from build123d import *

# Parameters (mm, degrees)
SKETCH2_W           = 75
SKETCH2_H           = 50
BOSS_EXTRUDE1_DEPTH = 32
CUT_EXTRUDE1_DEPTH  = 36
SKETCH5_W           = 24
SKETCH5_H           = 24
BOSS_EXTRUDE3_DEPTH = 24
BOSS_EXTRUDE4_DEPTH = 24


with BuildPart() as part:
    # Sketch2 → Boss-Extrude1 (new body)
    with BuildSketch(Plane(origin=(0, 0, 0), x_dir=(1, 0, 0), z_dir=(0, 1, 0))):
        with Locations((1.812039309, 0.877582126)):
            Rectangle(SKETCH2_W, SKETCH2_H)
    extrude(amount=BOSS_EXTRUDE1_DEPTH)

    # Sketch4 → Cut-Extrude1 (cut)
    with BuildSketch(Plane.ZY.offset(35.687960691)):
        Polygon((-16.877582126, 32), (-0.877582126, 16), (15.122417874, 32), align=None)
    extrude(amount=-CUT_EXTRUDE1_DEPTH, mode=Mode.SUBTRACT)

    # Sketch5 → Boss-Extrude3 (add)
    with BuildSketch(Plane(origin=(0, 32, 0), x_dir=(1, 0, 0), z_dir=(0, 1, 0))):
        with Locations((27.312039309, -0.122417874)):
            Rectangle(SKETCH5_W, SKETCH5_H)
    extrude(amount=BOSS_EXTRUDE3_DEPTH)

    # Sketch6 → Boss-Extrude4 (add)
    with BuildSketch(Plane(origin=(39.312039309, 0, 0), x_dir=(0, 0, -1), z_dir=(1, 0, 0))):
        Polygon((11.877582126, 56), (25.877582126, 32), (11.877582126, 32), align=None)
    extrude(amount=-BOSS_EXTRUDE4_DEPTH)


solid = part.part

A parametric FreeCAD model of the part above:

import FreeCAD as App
import Part
import Sketcher
from FreeCAD import Vector

doc = App.newDocument("Part")
params = doc.addObject("Spreadsheet::Sheet", "Params")
for row, (alias, value) in enumerate([
    ("sketch1_width", "75 mm"),
    ("sketch1_height", "50 mm"),
    ("pad1_length", "32 mm"),
    ("sketch2_height", "32 mm"),
    ("pocket1_length", "36 mm"),
    ("sketch3_width", "24 mm"),
    ("pad2_length", "24 mm"),
    ("sketch4_width", "24 mm"),
    ("sketch4_height", "14 mm"),
    ("pad3_length", "24 mm"),
], start=1):
    params.set(f"A{row}", alias)
    params.set(f"B{row}", "=" + value)
    params.setAlias(f"B{row}", alias)

body = doc.addObject("PartDesign::Body", "Body")

# Sketch on XZ plane
sketch1 = body.newObject("Sketcher::SketchObject", "Sketch")
sketch1.AttachmentSupport = (doc.getObject("XZ_Plane"), [""])
sketch1.MapMode = "FlatFace"
sketch1.addGeometry([
    Part.LineSegment(Vector(-36, -26, 0), Vector(-36, 24, 0)),
    Part.LineSegment(Vector(-36, 24, 0), Vector(39, 24, 0)),
    Part.LineSegment(Vector(39, 24, 0), Vector(39, -26, 0)),
    Part.LineSegment(Vector(39, -26, 0), Vector(-36, -26, 0)),
], False)
sketch1.addConstraint([
    Sketcher.Constraint("Coincident", 0, 2, 1, 1),
    Sketcher.Constraint("Coincident", 1, 2, 2, 1),
    Sketcher.Constraint("Coincident", 2, 2, 3, 1),
    Sketcher.Constraint("Coincident", 3, 2, 0, 1),
    Sketcher.Constraint("Vertical", 0),
    Sketcher.Constraint("Horizontal", 1),
    Sketcher.Constraint("Vertical", 2),
    Sketcher.Constraint("Horizontal", 3),
    Sketcher.Constraint("DistanceX", 1, 1, 1, 2, 75.0),
    Sketcher.Constraint("DistanceY", 0, 1, 0, 2, 50.0),
    Sketcher.Constraint("DistanceX", 0, 2, -1, 1, 35.687961),
    Sketcher.Constraint("DistanceY", -1, 1, 0, 2, 24.122418),
])
sketch1.setExpression("Constraints[8]", "Params.sketch1_width")
sketch1.setExpression("Constraints[9]", "Params.sketch1_height")
pad1 = body.newObject("PartDesign::Pad", "Pad")
pad1.Profile = sketch1
pad1.setExpression("Length", "Params.pad1_length")
pad1.Reversed = True

# Sketch on YZ plane
sketch2 = body.newObject("Sketcher::SketchObject", "Sketch001")
sketch2.AttachmentSupport = (doc.getObject("YZ_Plane"), [""])
sketch2.MapMode = "FlatFace"
sketch2.AttachmentOffset = App.Placement(Vector(0, 0, -35.687961), App.Rotation())
sketch2.addGeometry([
    Part.LineSegment(Vector(32, -17, 0), Vector(16, -1, 0)),
    Part.LineSegment(Vector(16, -1, 0), Vector(32, 15, 0)),
    Part.LineSegment(Vector(32, 15, 0), Vector(32, -17, 0)),
], False)
sketch2.addConstraint([
    Sketcher.Constraint("Coincident", 0, 2, 1, 1),
    Sketcher.Constraint("Coincident", 1, 2, 2, 1),
    Sketcher.Constraint("Coincident", 2, 2, 0, 1),
    Sketcher.Constraint("Vertical", 2),
    Sketcher.Constraint("Perpendicular", 0, 1),
    Sketcher.Constraint("Equal", 0, 1),
    Sketcher.Constraint("DistanceY", 2, 2, 2, 1, 32.0),
    Sketcher.Constraint("DistanceX", -1, 1, 0, 2, 16.0),
    Sketcher.Constraint("DistanceY", 0, 2, -1, 1, 0.877582),
])
sketch2.setExpression("Constraints[6]", "Params.sketch2_height")
pocket1 = body.newObject("PartDesign::Pocket", "Pocket")
pocket1.Profile = sketch2
pocket1.setExpression("Length", "Params.pocket1_length")
pocket1.Reversed = True

# Sketch on XZ plane
sketch3 = body.newObject("Sketcher::SketchObject", "Sketch002")
sketch3.AttachmentSupport = (doc.getObject("XZ_Plane"), [""])
sketch3.MapMode = "FlatFace"
sketch3.AttachmentOffset = App.Placement(Vector(0, 0, -32), App.Rotation())
sketch3.addGeometry([
    Part.LineSegment(Vector(15, -12, 0), Vector(15, 12, 0)),
    Part.LineSegment(Vector(15, 12, 0), Vector(39, 12, 0)),
    Part.LineSegment(Vector(39, 12, 0), Vector(39, -12, 0)),
    Part.LineSegment(Vector(39, -12, 0), Vector(15, -12, 0)),
], False)
sketch3.addConstraint([
    Sketcher.Constraint("Coincident", 0, 2, 1, 1),
    Sketcher.Constraint("Coincident", 1, 2, 2, 1),
    Sketcher.Constraint("Coincident", 2, 2, 3, 1),
    Sketcher.Constraint("Coincident", 3, 2, 0, 1),
    Sketcher.Constraint("Vertical", 0),
    Sketcher.Constraint("Horizontal", 1),
    Sketcher.Constraint("Vertical", 2),
    Sketcher.Constraint("Horizontal", 3),
    Sketcher.Constraint("Equal", 3, 0),
    Sketcher.Constraint("DistanceX", 1, 1, 1, 2, 24.0),
    Sketcher.Constraint("DistanceX", -1, 1, 0, 2, 15.312039),
    Sketcher.Constraint("DistanceY", -1, 1, 0, 2, 12.122418),
])
sketch3.setExpression("Constraints[9]", "Params.sketch3_width")
pad2 = body.newObject("PartDesign::Pad", "Pad001")
pad2.Profile = sketch3
pad2.setExpression("Length", "Params.pad2_length")
pad2.Reversed = True

# Sketch on YZ plane
sketch4 = body.newObject("Sketcher::SketchObject", "Sketch003")
sketch4.AttachmentSupport = (doc.getObject("YZ_Plane"), [""])
sketch4.MapMode = "FlatFace"
sketch4.AttachmentOffset = App.Placement(Vector(0, 0, 39.312039), App.Rotation())
sketch4.addGeometry([
    Part.LineSegment(Vector(32, -26, 0), Vector(56, -12, 0)),
    Part.LineSegment(Vector(56, -12, 0), Vector(32, -12, 0)),
    Part.LineSegment(Vector(32, -12, 0), Vector(32, -26, 0)),
], False)
sketch4.addConstraint([
    Sketcher.Constraint("Coincident", 0, 2, 1, 1),
    Sketcher.Constraint("Coincident", 1, 2, 2, 1),
    Sketcher.Constraint("Coincident", 2, 2, 0, 1),
    Sketcher.Constraint("Horizontal", 1),
    Sketcher.Constraint("Vertical", 2),
    Sketcher.Constraint("DistanceX", 1, 2, 1, 1, 24.0),
    Sketcher.Constraint("DistanceY", 2, 2, 2, 1, 14.0),
    Sketcher.Constraint("DistanceX", -1, 1, 0, 2, 56.0),
    Sketcher.Constraint("DistanceY", 0, 2, -1, 1, 11.877582),
])
sketch4.setExpression("Constraints[5]", "Params.sketch4_width")
sketch4.setExpression("Constraints[6]", "Params.sketch4_height")
pad3 = body.newObject("PartDesign::Pad", "Pad002")
pad3.Profile = sketch4
pad3.setExpression("Length", "Params.pad3_length")
pad3.Reversed = True

doc.recompute()
